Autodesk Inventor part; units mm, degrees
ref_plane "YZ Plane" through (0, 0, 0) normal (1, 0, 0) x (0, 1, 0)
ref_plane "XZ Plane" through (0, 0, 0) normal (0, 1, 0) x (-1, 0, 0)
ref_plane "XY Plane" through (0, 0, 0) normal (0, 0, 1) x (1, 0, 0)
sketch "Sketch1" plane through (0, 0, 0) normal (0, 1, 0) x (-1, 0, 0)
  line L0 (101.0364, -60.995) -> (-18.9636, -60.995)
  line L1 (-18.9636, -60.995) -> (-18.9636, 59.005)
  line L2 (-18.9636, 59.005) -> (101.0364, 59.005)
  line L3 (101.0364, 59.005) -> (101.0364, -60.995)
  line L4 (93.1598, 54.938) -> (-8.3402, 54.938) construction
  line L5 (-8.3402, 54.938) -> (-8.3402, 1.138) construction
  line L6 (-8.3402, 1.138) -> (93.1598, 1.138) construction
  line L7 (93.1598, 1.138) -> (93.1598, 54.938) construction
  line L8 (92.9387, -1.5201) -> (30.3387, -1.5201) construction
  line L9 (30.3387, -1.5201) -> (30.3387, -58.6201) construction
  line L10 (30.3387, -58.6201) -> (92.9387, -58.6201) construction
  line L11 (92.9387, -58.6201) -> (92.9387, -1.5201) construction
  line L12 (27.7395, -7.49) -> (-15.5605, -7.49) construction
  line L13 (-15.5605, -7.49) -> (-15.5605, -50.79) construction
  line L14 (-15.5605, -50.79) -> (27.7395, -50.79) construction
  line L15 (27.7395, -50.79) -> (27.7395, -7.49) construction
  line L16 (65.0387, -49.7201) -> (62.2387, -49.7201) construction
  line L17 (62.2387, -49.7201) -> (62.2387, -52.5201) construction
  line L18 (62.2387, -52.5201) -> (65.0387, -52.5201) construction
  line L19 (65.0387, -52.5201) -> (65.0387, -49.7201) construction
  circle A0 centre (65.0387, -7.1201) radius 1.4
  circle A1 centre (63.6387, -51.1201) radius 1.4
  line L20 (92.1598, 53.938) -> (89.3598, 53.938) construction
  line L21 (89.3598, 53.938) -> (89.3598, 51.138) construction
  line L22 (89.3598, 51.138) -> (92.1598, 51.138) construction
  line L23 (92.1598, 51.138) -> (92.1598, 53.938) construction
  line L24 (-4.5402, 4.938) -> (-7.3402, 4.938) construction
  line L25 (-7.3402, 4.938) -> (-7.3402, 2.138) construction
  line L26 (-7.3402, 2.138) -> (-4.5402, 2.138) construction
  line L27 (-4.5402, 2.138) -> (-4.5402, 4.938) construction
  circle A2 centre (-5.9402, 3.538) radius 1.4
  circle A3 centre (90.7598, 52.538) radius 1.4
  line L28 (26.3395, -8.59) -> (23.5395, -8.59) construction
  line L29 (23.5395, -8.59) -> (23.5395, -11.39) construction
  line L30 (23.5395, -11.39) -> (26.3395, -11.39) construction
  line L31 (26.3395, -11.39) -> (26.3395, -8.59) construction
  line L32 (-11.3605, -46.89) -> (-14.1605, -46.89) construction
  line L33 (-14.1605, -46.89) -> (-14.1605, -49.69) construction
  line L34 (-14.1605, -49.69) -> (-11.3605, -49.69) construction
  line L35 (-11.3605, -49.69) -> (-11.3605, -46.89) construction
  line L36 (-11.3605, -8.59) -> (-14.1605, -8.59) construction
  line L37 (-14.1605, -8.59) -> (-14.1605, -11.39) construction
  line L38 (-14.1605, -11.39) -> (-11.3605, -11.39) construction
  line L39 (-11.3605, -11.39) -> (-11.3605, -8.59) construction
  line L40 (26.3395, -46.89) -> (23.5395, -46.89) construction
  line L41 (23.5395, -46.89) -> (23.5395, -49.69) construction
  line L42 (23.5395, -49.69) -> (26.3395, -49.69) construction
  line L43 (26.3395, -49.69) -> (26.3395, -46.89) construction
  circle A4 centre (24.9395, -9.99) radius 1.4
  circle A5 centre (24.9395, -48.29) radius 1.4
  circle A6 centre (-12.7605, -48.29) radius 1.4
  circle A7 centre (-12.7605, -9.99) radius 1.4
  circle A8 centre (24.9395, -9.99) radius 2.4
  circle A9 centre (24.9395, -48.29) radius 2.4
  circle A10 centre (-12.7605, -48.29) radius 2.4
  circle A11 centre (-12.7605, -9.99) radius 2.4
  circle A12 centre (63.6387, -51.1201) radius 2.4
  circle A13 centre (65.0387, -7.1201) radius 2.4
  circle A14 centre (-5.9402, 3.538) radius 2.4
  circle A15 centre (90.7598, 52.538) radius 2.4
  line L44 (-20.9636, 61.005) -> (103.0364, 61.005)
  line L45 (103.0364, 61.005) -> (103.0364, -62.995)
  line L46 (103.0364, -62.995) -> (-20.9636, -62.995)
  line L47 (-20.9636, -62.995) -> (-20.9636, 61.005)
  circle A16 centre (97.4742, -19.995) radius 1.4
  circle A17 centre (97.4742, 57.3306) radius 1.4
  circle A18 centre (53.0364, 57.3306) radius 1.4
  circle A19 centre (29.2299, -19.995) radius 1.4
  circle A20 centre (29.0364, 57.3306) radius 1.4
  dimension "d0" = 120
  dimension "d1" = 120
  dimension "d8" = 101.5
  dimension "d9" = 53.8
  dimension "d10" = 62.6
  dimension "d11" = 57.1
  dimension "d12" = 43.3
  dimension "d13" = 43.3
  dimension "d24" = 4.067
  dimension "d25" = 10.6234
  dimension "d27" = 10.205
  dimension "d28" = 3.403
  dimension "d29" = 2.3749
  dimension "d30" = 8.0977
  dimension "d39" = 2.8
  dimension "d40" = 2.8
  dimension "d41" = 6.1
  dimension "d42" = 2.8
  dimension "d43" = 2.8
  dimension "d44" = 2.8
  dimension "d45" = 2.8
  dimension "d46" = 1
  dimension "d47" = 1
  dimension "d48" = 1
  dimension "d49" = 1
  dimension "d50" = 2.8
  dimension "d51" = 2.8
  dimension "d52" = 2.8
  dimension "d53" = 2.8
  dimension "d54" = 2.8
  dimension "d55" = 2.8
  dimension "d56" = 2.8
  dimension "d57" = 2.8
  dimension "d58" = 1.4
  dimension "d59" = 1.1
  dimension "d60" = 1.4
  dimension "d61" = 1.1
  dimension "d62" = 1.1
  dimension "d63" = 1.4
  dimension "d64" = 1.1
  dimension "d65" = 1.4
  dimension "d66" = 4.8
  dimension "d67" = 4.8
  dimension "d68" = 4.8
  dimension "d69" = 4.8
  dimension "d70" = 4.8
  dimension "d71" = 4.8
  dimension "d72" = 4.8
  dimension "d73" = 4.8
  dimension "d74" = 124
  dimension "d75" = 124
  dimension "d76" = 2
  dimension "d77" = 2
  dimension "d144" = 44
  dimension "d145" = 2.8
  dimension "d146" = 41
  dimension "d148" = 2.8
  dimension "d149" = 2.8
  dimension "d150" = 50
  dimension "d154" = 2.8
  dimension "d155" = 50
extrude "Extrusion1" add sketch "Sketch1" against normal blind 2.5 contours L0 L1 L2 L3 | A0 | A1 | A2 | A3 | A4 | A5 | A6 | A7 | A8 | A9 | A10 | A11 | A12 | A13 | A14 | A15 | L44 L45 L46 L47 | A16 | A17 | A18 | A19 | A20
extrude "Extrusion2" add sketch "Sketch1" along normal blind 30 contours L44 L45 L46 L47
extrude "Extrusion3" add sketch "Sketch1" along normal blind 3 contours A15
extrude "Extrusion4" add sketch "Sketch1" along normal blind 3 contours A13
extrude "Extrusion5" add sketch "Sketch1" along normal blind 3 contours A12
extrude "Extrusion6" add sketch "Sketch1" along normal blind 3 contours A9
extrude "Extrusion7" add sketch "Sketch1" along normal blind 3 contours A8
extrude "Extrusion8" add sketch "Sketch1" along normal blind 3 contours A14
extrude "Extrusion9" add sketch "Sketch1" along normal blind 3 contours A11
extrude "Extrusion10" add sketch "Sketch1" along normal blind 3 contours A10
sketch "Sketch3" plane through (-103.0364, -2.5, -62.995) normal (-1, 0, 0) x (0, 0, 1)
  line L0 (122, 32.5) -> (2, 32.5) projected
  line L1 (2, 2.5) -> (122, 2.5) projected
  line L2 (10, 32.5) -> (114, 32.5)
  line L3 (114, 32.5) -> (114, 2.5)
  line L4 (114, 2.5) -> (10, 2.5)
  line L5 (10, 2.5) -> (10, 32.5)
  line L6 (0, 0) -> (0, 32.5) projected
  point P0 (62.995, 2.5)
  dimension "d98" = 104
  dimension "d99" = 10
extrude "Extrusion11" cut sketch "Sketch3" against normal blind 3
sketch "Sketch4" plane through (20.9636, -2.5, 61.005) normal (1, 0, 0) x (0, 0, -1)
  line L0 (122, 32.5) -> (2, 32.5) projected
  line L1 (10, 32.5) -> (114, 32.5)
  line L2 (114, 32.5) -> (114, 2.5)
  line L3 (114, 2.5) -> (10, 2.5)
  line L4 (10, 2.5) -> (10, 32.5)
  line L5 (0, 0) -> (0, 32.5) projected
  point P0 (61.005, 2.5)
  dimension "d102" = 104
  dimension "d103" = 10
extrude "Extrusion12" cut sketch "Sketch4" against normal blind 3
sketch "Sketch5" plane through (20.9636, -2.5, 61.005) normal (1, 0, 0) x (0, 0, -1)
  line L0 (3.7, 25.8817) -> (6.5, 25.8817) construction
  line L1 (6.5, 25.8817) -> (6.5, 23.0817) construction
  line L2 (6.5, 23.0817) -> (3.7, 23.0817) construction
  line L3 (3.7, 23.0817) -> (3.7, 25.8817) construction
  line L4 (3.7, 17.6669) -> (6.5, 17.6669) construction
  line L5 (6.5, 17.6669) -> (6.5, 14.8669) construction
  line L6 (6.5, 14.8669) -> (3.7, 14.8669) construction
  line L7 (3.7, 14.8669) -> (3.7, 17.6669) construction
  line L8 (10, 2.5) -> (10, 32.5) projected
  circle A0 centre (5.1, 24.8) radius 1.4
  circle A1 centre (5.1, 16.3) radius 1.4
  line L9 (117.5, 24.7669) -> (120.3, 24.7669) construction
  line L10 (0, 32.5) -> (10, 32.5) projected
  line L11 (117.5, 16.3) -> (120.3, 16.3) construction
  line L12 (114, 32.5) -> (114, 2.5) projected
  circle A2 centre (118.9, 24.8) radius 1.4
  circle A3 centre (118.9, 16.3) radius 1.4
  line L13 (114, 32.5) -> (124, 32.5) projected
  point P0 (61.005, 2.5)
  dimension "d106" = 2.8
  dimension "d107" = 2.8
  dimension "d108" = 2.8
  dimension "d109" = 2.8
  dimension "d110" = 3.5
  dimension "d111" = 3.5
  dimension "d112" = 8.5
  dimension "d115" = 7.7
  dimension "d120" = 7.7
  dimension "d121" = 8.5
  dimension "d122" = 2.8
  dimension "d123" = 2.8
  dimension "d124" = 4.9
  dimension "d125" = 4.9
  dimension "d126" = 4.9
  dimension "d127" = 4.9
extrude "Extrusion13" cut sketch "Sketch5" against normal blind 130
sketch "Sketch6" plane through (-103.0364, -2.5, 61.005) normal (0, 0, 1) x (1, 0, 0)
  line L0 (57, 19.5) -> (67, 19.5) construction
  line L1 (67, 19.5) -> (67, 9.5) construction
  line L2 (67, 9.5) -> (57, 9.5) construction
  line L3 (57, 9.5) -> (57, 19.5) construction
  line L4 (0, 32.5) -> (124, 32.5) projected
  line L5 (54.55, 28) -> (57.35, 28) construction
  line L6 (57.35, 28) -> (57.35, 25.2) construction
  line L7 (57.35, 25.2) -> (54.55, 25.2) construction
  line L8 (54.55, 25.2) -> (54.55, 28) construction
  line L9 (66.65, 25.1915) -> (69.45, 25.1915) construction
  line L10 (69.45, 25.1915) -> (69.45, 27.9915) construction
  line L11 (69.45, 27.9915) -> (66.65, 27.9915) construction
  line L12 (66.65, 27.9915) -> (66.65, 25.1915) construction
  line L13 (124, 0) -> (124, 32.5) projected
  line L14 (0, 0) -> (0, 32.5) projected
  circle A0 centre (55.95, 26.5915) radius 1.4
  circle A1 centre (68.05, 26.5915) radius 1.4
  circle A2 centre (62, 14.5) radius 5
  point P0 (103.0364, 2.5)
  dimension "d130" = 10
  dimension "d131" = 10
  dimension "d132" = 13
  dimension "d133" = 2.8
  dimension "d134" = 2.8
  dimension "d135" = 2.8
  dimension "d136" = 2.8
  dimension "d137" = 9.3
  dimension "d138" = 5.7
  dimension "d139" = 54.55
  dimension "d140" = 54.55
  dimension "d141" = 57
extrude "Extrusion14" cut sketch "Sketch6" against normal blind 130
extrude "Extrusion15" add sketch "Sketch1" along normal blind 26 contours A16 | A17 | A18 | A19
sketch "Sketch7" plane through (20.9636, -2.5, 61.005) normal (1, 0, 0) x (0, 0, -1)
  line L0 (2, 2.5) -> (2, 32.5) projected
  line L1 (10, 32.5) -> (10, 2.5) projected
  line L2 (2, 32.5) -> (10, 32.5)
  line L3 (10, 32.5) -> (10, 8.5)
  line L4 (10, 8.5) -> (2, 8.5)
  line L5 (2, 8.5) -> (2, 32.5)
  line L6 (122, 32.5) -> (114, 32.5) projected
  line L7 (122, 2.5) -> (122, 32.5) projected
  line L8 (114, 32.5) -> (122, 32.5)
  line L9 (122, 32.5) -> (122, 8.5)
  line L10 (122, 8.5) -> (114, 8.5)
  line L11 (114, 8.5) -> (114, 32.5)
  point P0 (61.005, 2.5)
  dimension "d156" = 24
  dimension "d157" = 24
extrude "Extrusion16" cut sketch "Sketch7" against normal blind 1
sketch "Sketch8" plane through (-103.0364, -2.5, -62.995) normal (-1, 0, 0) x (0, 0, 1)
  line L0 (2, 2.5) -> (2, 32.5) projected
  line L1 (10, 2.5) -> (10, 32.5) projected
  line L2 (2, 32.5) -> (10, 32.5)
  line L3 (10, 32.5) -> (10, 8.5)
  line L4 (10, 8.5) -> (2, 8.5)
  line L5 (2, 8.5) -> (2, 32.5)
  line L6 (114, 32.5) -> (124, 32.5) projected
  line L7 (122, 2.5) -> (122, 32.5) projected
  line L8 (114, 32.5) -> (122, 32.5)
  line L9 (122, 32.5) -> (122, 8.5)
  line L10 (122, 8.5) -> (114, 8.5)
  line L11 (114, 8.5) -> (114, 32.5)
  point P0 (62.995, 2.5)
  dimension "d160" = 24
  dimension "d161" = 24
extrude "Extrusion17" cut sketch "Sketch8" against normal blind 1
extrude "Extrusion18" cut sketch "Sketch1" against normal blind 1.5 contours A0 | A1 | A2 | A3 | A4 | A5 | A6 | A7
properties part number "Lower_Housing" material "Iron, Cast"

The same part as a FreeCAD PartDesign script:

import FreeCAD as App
import Part
import Sketcher
from FreeCAD import Vector
Q = App.Units.Quantity


def add_polygon(sketch, points):
    """Adds a closed chain of lines whose ends are joined by coincident constraints."""
    first, n = sketch.GeometryCount, len(points)
    for a, b in zip(points, points[1:] + points[:1]):
        sketch.addGeometry(Part.LineSegment(App.Vector(*a, 0), App.Vector(*b, 0)), False)
    for i in range(n):
        sketch.addConstraint(Sketcher.Constraint("Coincident", first + i, 2, first + (i + 1) % n, 1))

doc = App.newDocument("Part")
params = doc.addObject("Spreadsheet::Sheet", "Params")
for row, (alias, value) in enumerate([
    ("sketch1_width", "124 mm"),
    ("pad1_length", "2.5 mm"),
    ("sketch2_width", "124 mm"),
    ("sketch2_width2", "120 mm"),
    ("pad2_length", "30 mm"),
    ("sketch3_diameter", "4.8 mm"),
    ("sketch3_diameter2", "2.8 mm"),
    ("pad3_length", "3 mm"),
    ("sketch4_diameter", "4.8 mm"),
    ("sketch4_diameter2", "2.8 mm"),
    ("pad4_length", "3 mm"),
    ("sketch5_diameter", "4.8 mm"),
    ("sketch5_diameter2", "2.8 mm"),
    ("pad5_length", "3 mm"),
    ("sketch6_diameter", "4.8 mm"),
    ("sketch6_diameter2", "2.8 mm"),
    ("pad6_length", "3 mm"),
    ("sketch7_diameter", "4.8 mm"),
    ("sketch7_diameter2", "2.8 mm"),
    ("pad7_length", "3 mm"),
    ("sketch8_diameter", "4.8 mm"),
    ("sketch8_diameter2", "2.8 mm"),
    ("pad8_length", "3 mm"),
    ("sketch9_diameter", "4.8 mm"),
    ("sketch9_diameter2", "2.8 mm"),
    ("pad9_length", "3 mm"),
    ("sketch10_diameter", "4.8 mm"),
    ("sketch10_diameter2", "2.8 mm"),
    ("pad10_length", "3 mm"),
    ("sketch11_height", "104 mm"),
    ("sketch11_width", "30 mm"),
    ("pocket1_length", "3 mm"),
    ("sketch12_height", "104 mm"),
    ("sketch12_width", "30 mm"),
    ("pocket2_length", "3 mm"),
    ("sketch13_diameter", "2.8 mm"),
    ("pocket3_length", "130 mm"),
    ("sketch14_diameter", "10 mm"),
    ("sketch14_diameter2", "2.8 mm"),
    ("pocket4_length", "130 mm"),
    ("sketch15_diameter", "2.8 mm"),
    ("pad11_length", "26 mm"),
    ("sketch16_width", "24 mm"),
    ("sketch16_height", "8 mm"),
    ("pocket5_length", "1 mm"),
    ("sketch17_width", "24 mm"),
    ("sketch17_height", "8 mm"),
    ("pocket6_length", "1 mm"),
    ("sketch18_diameter", "2.8 mm"),
    ("pocket7_length", "1.5 mm"),
], start=1):
    params.set(f"A{row}", alias)
    params.set(f"B{row}", "=" + value)
    params.setAlias(f"B{row}", alias)

body = doc.addObject("PartDesign::Body", "Body")

# Sketch on XZ plane
sketch1 = doc.addObject("Sketcher::SketchObject", "Sketch")
body.addObject(sketch1)
sketch1.AttachmentSupport = (doc.XZ_Plane, [""])
sketch1.MapMode = "FlatFace"
add_polygon(sketch1, [(-103, 61), (21, 61), (21, -63), (-103, -63)])  # lines 0-3
sketch1.addConstraint(Sketcher.Constraint("Horizontal", 0))
sketch1.addConstraint(Sketcher.Constraint("Vertical", 1))
sketch1.addConstraint(Sketcher.Constraint("Horizontal", 2))
sketch1.addConstraint(Sketcher.Constraint("Vertical", 3))
sketch1.addConstraint(Sketcher.Constraint("Equal", 2, 1))
sketch1.addConstraint(Sketcher.Constraint("DistanceX", 0, 1, 0, 2, Q("124 mm")))
sketch1.addConstraint(Sketcher.Constraint("DistanceY", -1, 1, 0, 2, Q("61.005 mm")))
sketch1.addConstraint(Sketcher.Constraint("DistanceX", -1, 1, 0, 2, Q("20.9636 mm")))
sketch1.setExpression("Constraints[9]", "Params.sketch1_width")
pad1 = doc.addObject("PartDesign::Pad", "Pad")
body.addObject(pad1)
pad1.Profile = sketch1
pad1.setExpression("Length", "Params.pad1_length")

# Sketch on XZ plane
sketch2 = doc.addObject("Sketcher::SketchObject", "Sketch001")
body.addObject(sketch2)
sketch2.AttachmentSupport = (doc.XZ_Plane, [""])
sketch2.MapMode = "FlatFace"
add_polygon(sketch2, [(-103, 61), (21, 61), (21, -63), (-103, -63)])  # lines 0-3
add_polygon(sketch2, [(-101, 59), (-101, -61), (19, -61), (19, 59)])  # lines 4-7
sketch2.addConstraint(Sketcher.Constraint("Horizontal", 0))
sketch2.addConstraint(Sketcher.Constraint("Vertical", 1))
sketch2.addConstraint(Sketcher.Constraint("Horizontal", 2))
sketch2.addConstraint(Sketcher.Constraint("Vertical", 3))
sketch2.addConstraint(Sketcher.Constraint("Vertical", 4))
sketch2.addConstraint(Sketcher.Constraint("Horizontal", 5))
sketch2.addConstraint(Sketcher.Constraint("Vertical", 6))
sketch2.addConstraint(Sketcher.Constraint("Horizontal", 7))
sketch2.addConstraint(Sketcher.Constraint("Equal", 2, 1))
sketch2.addConstraint(Sketcher.Constraint("Equal", 7, 4))
sketch2.addConstraint(Sketcher.Constraint("DistanceX", 0, 1, 0, 2, Q("124 mm")))
sketch2.addConstraint(Sketcher.Constraint("DistanceX", 5, 1, 5, 2, Q("120 mm")))
sketch2.addConstraint(Sketcher.Constraint("DistanceX", 2, 2, 4, 2, Q("2 mm")))
sketch2.addConstraint(Sketcher.Constraint("DistanceY", 2, 2, 4, 2, Q("2 mm")))
sketch2.addConstraint(Sketcher.Constraint("DistanceY", -1, 1, 0, 2, Q("61.005 mm")))
sketch2.addConstraint(Sketcher.Constraint("DistanceX", -1, 1, 0, 2, Q("20.9636 mm")))
sketch2.setExpression("Constraints[18]", "Params.sketch2_width")
sketch2.setExpression("Constraints[19]", "Params.sketch2_width2")
pad2 = doc.addObject("PartDesign::Pad", "Pad001")
body.addObject(pad2)
pad2.Profile = sketch2
pad2.setExpression("Length", "Params.pad2_length")
pad2.Reversed = True

# Sketch on XZ plane
sketch3 = doc.addObject("Sketcher::SketchObject", "Sketch002")
body.addObject(sketch3)
sketch3.AttachmentSupport = (doc.XZ_Plane, [""])
sketch3.MapMode = "FlatFace"
sketch3.addGeometry(Part.Circle(Vector(-90.8, 52.5, 0), Vector(0, 0, 1), 2.4), False)
sketch3.addGeometry(Part.Circle(Vector(-90.8, 52.5, 0), Vector(0, 0, 1), 1.4), False)
sketch3.addConstraint(Sketcher.Constraint("Coincident", 1, 3, 0, 3))
sketch3.addConstraint(Sketcher.Constraint("Diameter", 0, Q("4.8 mm")))
sketch3.addConstraint(Sketcher.Constraint("Diameter", 1, Q("2.8 mm")))
sketch3.addConstraint(Sketcher.Constraint("DistanceY", -1, 1, 0, 3, Q("52.538 mm")))
sketch3.addConstraint(Sketcher.Constraint("DistanceX", 0, 3, -1, 1, Q("90.7598 mm")))
sketch3.setExpression("Constraints[1]", "Params.sketch3_diameter")
sketch3.setExpression("Constraints[2]", "Params.sketch3_diameter2")
pad3 = doc.addObject("PartDesign::Pad", "Pad002")
body.addObject(pad3)
pad3.Profile = sketch3
pad3.setExpression("Length", "Params.pad3_length")
pad3.Reversed = True

# Sketch on XZ plane
sketch4 = doc.addObject("Sketcher::SketchObject", "Sketch003")
body.addObject(sketch4)
sketch4.AttachmentSupport = (doc.XZ_Plane, [""])
sketch4.MapMode = "FlatFace"
sketch4.addGeometry(Part.Circle(Vector(-65, -7.1, 0), Vector(0, 0, 1), 2.4), False)
sketch4.addGeometry(Part.Circle(Vector(-65, -7.1, 0), Vector(0, 0, 1), 1.4), False)
sketch4.addConstraint(Sketcher.Constraint("Coincident", 1, 3, 0, 3))
sketch4.addConstraint(Sketcher.Constraint("Diameter", 0, Q("4.8 mm")))
sketch4.addConstraint(Sketcher.Constraint("Diameter", 1, Q("2.8 mm")))
sketch4.addConstraint(Sketcher.Constraint("DistanceY", 0, 3, -1, 1, Q("7.12 mm")))
sketch4.addConstraint(Sketcher.Constraint("DistanceX", 0, 3, -1, 1, Q("65.0387 mm")))
sketch4.setExpression("Constraints[1]", "Params.sketch4_diameter")
sketch4.setExpression("Constraints[2]", "Params.sketch4_diameter2")
pad4 = doc.addObject("PartDesign::Pad", "Pad003")
body.addObject(pad4)
pad4.Profile = sketch4
pad4.setExpression("Length", "Params.pad4_length")
pad4.Reversed = True

# Sketch on XZ plane
sketch5 = doc.addObject("Sketcher::SketchObject", "Sketch004")
body.addObject(sketch5)
sketch5.AttachmentSupport = (doc.XZ_Plane, [""])
sketch5.MapMode = "FlatFace"
sketch5.addGeometry(Part.Circle(Vector(-63.6, -51.1, 0), Vector(0, 0, 1), 2.4), False)
sketch5.addGeometry(Part.Circle(Vector(-63.6, -51.1, 0), Vector(0, 0, 1), 1.4), False)
sketch5.addConstraint(Sketcher.Constraint("Coincident", 1, 3, 0, 3))
sketch5.addConstraint(Sketcher.Constraint("Diameter", 0, Q("4.8 mm")))
sketch5.addConstraint(Sketcher.Constraint("Diameter", 1, Q("2.8 mm")))
sketch5.addConstraint(Sketcher.Constraint("DistanceY", 0, 3, -1, 1, Q("51.12 mm")))
sketch5.addConstraint(Sketcher.Constraint("DistanceX", 0, 3, -1, 1, Q("63.6387 mm")))
sketch5.setExpression("Constraints[1]", "Params.sketch5_diameter")
sketch5.setExpression("Constraints[2]", "Params.sketch5_diameter2")
pad5 = doc.addObject("PartDesign::Pad", "Pad004")
body.addObject(pad5)
pad5.Profile = sketch5
pad5.setExpression("Length", "Params.pad5_length")
pad5.Reversed = True

# Sketch on XZ plane
sketch6 = doc.addObject("Sketcher::SketchObject", "Sketch005")
body.addObject(sketch6)
sketch6.AttachmentSupport = (doc.XZ_Plane, [""])
sketch6.MapMode = "FlatFace"
sketch6.addGeometry(Part.Circle(Vector(-24.9, -48.3, 0), Vector(0, 0, 1), 2.4), False)
sketch6.addGeometry(Part.Circle(Vector(-24.9, -48.3, 0), Vector(0, 0, 1), 1.4), False)
sketch6.addConstraint(Sketcher.Constraint("Coincident", 1, 3, 0, 3))
sketch6.addConstraint(Sketcher.Constraint("Diameter", 0, Q("4.8 mm")))
sketch6.addConstraint(Sketcher.Constraint("Diameter", 1, Q("2.8 mm")))
sketch6.addConstraint(Sketcher.Constraint("DistanceY", 0, 3, -1, 1, Q("48.29 mm")))
sketch6.addConstraint(Sketcher.Constraint("DistanceX", 0, 3, -1, 1, Q("24.9395 mm")))
sketch6.setExpression("Constraints[1]", "Params.sketch6_diameter")
sketch6.setExpression("Constraints[2]", "Params.sketch6_diameter2")
pad6 = doc.addObject("PartDesign::Pad", "Pad005")
body.addObject(pad6)
pad6.Profile = sketch6
pad6.setExpression("Length", "Params.pad6_length")
pad6.Reversed = True

# Sketch on XZ plane
sketch7 = doc.addObject("Sketcher::SketchObject", "Sketch006")
body.addObject(sketch7)
sketch7.AttachmentSupport = (doc.XZ_Plane, [""])
sketch7.MapMode = "FlatFace"
sketch7.addGeometry(Part.Circle(Vector(-24.9, -10, 0), Vector(0, 0, 1), 2.4), False)
sketch7.addGeometry(Part.Circle(Vector(-24.9, -10, 0), Vector(0, 0, 1), 1.4), False)
sketch7.addConstraint(Sketcher.Constraint("Coincident", 1, 3, 0, 3))
sketch7.addConstraint(Sketcher.Constraint("Diameter", 0, Q("4.8 mm")))
sketch7.addConstraint(Sketcher.Constraint("Diameter", 1, Q("2.8 mm")))
sketch7.addConstraint(Sketcher.Constraint("DistanceY", 0, 3, -1, 1, Q("9.99 mm")))
sketch7.addConstraint(Sketcher.Constraint("DistanceX", 0, 3, -1, 1, Q("24.9395 mm")))
sketch7.setExpression("Constraints[1]", "Params.sketch7_diameter")
sketch7.setExpression("Constraints[2]", "Params.sketch7_diameter2")
pad7 = doc.addObject("PartDesign::Pad", "Pad006")
body.addObject(pad7)
pad7.Profile = sketch7
pad7.setExpression("Length", "Params.pad7_length")
pad7.Reversed = True

# Sketch on XZ plane
sketch8 = doc.addObject("Sketcher::SketchObject", "Sketch007")
body.addObject(sketch8)
sketch8.AttachmentSupport = (doc.XZ_Plane, [""])
sketch8.MapMode = "FlatFace"
sketch8.addGeometry(Part.Circle(Vector(5.9, 3.5, 0), Vector(0, 0, 1), 2.4), False)
sketch8.addGeometry(Part.Circle(Vector(5.9, 3.5, 0), Vector(0, 0, 1), 1.4), False)
sketch8.addConstraint(Sketcher.Constraint("Coincident", 1, 3, 0, 3))
sketch8.addConstraint(Sketcher.Constraint("Diameter", 0, Q("4.8 mm")))
sketch8.addConstraint(Sketcher.Constraint("Diameter", 1, Q("2.8 mm")))
sketch8.addConstraint(Sketcher.Constraint("DistanceY", -1, 1, 0, 3, Q("3.538 mm")))
sketch8.addConstraint(Sketcher.Constraint("DistanceX", -1, 1, 0, 3, Q("5.9402 mm")))
sketch8.setExpression("Constraints[1]", "Params.sketch8_diameter")
sketch8.setExpression("Constraints[2]", "Params.sketch8_diameter2")
pad8 = doc.addObject("PartDesign::Pad", "Pad007")
body.addObject(pad8)
pad8.Profile = sketch8
pad8.setExpression("Length", "Params.pad8_length")
pad8.Reversed = True

# Sketch on XZ plane
sketch9 = doc.addObject("Sketcher::SketchObject", "Sketch008")
body.addObject(sketch9)
sketch9.AttachmentSupport = (doc.XZ_Plane, [""])
sketch9.MapMode = "FlatFace"
sketch9.addGeometry(Part.Circle(Vector(12.8, -10, 0), Vector(0, 0, 1), 2.4), False)
sketch9.addGeometry(Part.Circle(Vector(12.8, -10, 0), Vector(0, 0, 1), 1.4), False)
sketch9.addConstraint(Sketcher.Constraint("Coincident", 1, 3, 0, 3))
sketch9.addConstraint(Sketcher.Constraint("Diameter", 0, Q("4.8 mm")))
sketch9.addConstraint(Sketcher.Constraint("Diameter", 1, Q("2.8 mm")))
sketch9.addConstraint(Sketcher.Constraint("DistanceY", 0, 3, -1, 1, Q("9.99 mm")))
sketch9.addConstraint(Sketcher.Constraint("DistanceX", -1, 1, 0, 3, Q("12.7605 mm")))
sketch9.setExpression("Constraints[1]", "Params.sketch9_diameter")
sketch9.setExpression("Constraints[2]", "Params.sketch9_diameter2")
pad9 = doc.addObject("PartDesign::Pad", "Pad008")
body.addObject(pad9)
pad9.Profile = sketch9
pad9.setExpression("Length", "Params.pad9_length")
pad9.Reversed = True

# Sketch on XZ plane
sketch10 = doc.addObject("Sketcher::SketchObject", "Sketch009")
body.addObject(sketch10)
sketch10.AttachmentSupport = (doc.XZ_Plane, [""])
sketch10.MapMode = "FlatFace"
sketch10.addGeometry(Part.Circle(Vector(12.8, -48.3, 0), Vector(0, 0, 1), 2.4), False)
sketch10.addGeometry(Part.Circle(Vector(12.8, -48.3, 0), Vector(0, 0, 1), 1.4), False)
sketch10.addConstraint(Sketcher.Constraint("Coincident", 1, 3, 0, 3))
sketch10.addConstraint(Sketcher.Constraint("Diameter", 0, Q("4.8 mm")))
sketch10.addConstraint(Sketcher.Constraint("Diameter", 1, Q("2.8 mm")))
sketch10.addConstraint(Sketcher.Constraint("DistanceY", 0, 3, -1, 1, Q("48.29 mm")))
sketch10.addConstraint(Sketcher.Constraint("DistanceX", -1, 1, 0, 3, Q("12.7605 mm")))
sketch10.setExpression("Constraints[1]", "Params.sketch10_diameter")
sketch10.setExpression("Constraints[2]", "Params.sketch10_diameter2")
pad10 = doc.addObject("PartDesign::Pad", "Pad009")
body.addObject(pad10)
pad10.Profile = sketch10
pad10.setExpression("Length", "Params.pad10_length")
pad10.Reversed = True

# Sketch on YZ plane
sketch11 = doc.addObject("Sketcher::SketchObject", "Sketch010")
body.addObject(sketch11)
sketch11.AttachmentSupport = (doc.YZ_Plane, [""])
sketch11.MapMode = "FlatFace"
sketch11.AttachmentOffset = App.Placement(Vector(0, 0, -103.0364), App.Rotation())
add_polygon(sketch11, [(0, 51), (30, 51), (30, -53), (0, -53)])  # lines 0-3
sketch11.addConstraint(Sketcher.Constraint("Horizontal", 0))
sketch11.addConstraint(Sketcher.Constraint("Vertical", 1))
sketch11.addConstraint(Sketcher.Constraint("Horizontal", 2))
sketch11.addConstraint(Sketcher.Constraint("Vertical", 3))
sketch11.addConstraint(Sketcher.Constraint("PointOnObject", 2, 2, -2))
sketch11.addConstraint(Sketcher.Constraint("DistanceY", 1, 2, 1, 1, Q("104 mm")))
sketch11.addConstraint(Sketcher.Constraint("DistanceX", 0, 1, 0, 2, Q("30 mm")))
sketch11.addConstraint(Sketcher.Constraint("DistanceY", -1, 1, 0, 2, Q("51.005 mm")))
sketch11.setExpression("Constraints[9]", "Params.sketch11_height")
sketch11.setExpression("Constraints[10]", "Params.sketch11_width")
pocket1 = doc.addObject("PartDesign::Pocket", "Pocket")
body.addObject(pocket1)
pocket1.Profile = sketch11
pocket1.setExpression("Length", "Params.pocket1_length")
pocket1.Reversed = True

# Sketch on YZ plane
sketch12 = doc.addObject("Sketcher::SketchObject", "Sketch011")
body.addObject(sketch12)
sketch12.AttachmentSupport = (doc.YZ_Plane, [""])
sketch12.MapMode = "FlatFace"
sketch12.AttachmentOffset = App.Placement(Vector(0, 0, 20.9636), App.Rotation())
add_polygon(sketch12, [(0, -53), (30, -53), (30, 51), (0, 51)])  # lines 0-3
sketch12.addConstraint(Sketcher.Constraint("Horizontal", 0))
sketch12.addConstraint(Sketcher.Constraint("Vertical", 1))
sketch12.addConstraint(Sketcher.Constraint("Horizontal", 2))
sketch12.addConstraint(Sketcher.Constraint("Vertical", 3))
sketch12.addConstraint(Sketcher.Constraint("PointOnObject", 2, 2, -2))
sketch12.addConstraint(Sketcher.Constraint("DistanceY", 1, 1, 1, 2, Q("104 mm")))
sketch12.addConstraint(Sketcher.Constraint("DistanceX", 0, 1, 0, 2, Q("30 mm")))
sketch12.addConstraint(Sketcher.Constraint("DistanceY", 0, 2, -1, 1, Q("52.995 mm")))
sketch12.setExpression("Constraints[9]", "Params.sketch12_height")
sketch12.setExpression("Constraints[10]", "Params.sketch12_width")
pocket2 = doc.addObject("PartDesign::Pocket", "Pocket001")
body.addObject(pocket2)
pocket2.Profile = sketch12
pocket2.setExpression("Length", "Params.pocket2_length")

# Sketch on YZ plane
sketch13 = doc.addObject("Sketcher::SketchObject", "Sketch012")
body.addObject(sketch13)
sketch13.AttachmentSupport = (doc.YZ_Plane, [""])
sketch13.MapMode = "FlatFace"
sketch13.AttachmentOffset = App.Placement(Vector(0, 0, 20.9636), App.Rotation())
sketch13.addGeometry(Part.Circle(Vector(22.3, 55.9, 0), Vector(0, 0, 1), 1.4), False)
sketch13.addGeometry(Part.Circle(Vector(13.8, 55.9, 0), Vector(0, 0, 1), 1.4), False)
sketch13.addGeometry(Part.Circle(Vector(22.3, -57.9, 0), Vector(0, 0, 1), 1.4), False)
sketch13.addGeometry(Part.Circle(Vector(13.8, -57.9, 0), Vector(0, 0, 1), 1.4), False)
sketch13.addConstraint(Sketcher.Constraint("Equal", 0, 1))
sketch13.addConstraint(Sketcher.Constraint("Equal", 1, 2))
sketch13.addConstraint(Sketcher.Constraint("Equal", 2, 3))
sketch13.addConstraint(Sketcher.Constraint("Horizontal", 0, 3, 1, 3))
sketch13.addConstraint(Sketcher.Constraint("Horizontal", 2, 3, 3, 3))
sketch13.addConstraint(Sketcher.Constraint("Vertical", 0, 3, 2, 3))
sketch13.addConstraint(Sketcher.Constraint("Vertical", 1, 3, 3, 3))
sketch13.addConstraint(Sketcher.Constraint("Diameter", 0, Q("2.8 mm")))
sketch13.addConstraint(Sketcher.Constraint("DistanceX", 1, 3, 0, 3, Q("8.5 mm")))
sketch13.addConstraint(Sketcher.Constraint("DistanceX", -1, 1, 0, 3, Q("22.3 mm")))
sketch13.addConstraint(Sketcher.Constraint("DistanceY", 2, 3, 0, 3, Q("113.8 mm")))
sketch13.addConstraint(Sketcher.Constraint("DistanceY", -1, 1, 0, 3, Q("55.905 mm")))
sketch13.setExpression("Constraints[7]", "Params.sketch13_diameter")
pocket3 = doc.addObject("PartDesign::Pocket", "Pocket002")
body.addObject(pocket3)
pocket3.Profile = sketch13
pocket3.setExpression("Length", "Params.pocket3_length")

# Sketch on XY plane
sketch14 = doc.addObject("Sketcher::SketchObject", "Sketch013")
body.addObject(sketch14)
sketch14.AttachmentSupport = (doc.XY_Plane, [""])
sketch14.MapMode = "FlatFace"
sketch14.AttachmentOffset = App.Placement(Vector(0, 0, 61.005), App.Rotation())
sketch14.addGeometry(Part.Circle(Vector(-47.1, 24.1, 0), Vector(0, 0, 1), 1.4), False)
sketch14.addGeometry(Part.Circle(Vector(-35, 24.1, 0), Vector(0, 0, 1), 1.4), False)
sketch14.addGeometry(Part.Circle(Vector(-41, 12, 0), Vector(0, 0, 1), 5), False)
sketch14.addConstraint(Sketcher.Constraint("Equal", 0, 1))
sketch14.addConstraint(Sketcher.Constraint("Horizontal", 0, 3, 1, 3))
sketch14.addConstraint(Sketcher.Constraint("Diameter", 2, Q("10 mm")))
sketch14.addConstraint(Sketcher.Constraint("Diameter", 0, Q("2.8 mm")))
sketch14.addConstraint(Sketcher.Constraint("DistanceY", -1, 1, 2, 3, Q("12 mm")))
sketch14.addConstraint(Sketcher.Constraint("DistanceX", 0, 3, 1, 3, Q("12.1 mm")))
sketch14.addConstraint(Sketcher.Constraint("DistanceX", 0, 3, 2, 3, Q("6.05 mm")))
sketch14.addConstraint(Sketcher.Constraint("DistanceX", 0, 3, -1, 1, Q("47.0864 mm")))
sketch14.addConstraint(Sketcher.Constraint("DistanceY", -1, 1, 0, 3, Q("24.0915 mm")))
sketch14.setExpression("Constraints[2]", "Params.sketch14_diameter")
sketch14.setExpression("Constraints[3]", "Params.sketch14_diameter2")
pocket4 = doc.addObject("PartDesign::Pocket", "Pocket003")
body.addObject(pocket4)
pocket4.Profile = sketch14
pocket4.setExpression("Length", "Params.pocket4_length")

# Sketch on XZ plane
sketch15 = doc.addObject("Sketcher::SketchObject", "Sketch014")
body.addObject(sketch15)
sketch15.AttachmentSupport = (doc.XZ_Plane, [""])
sketch15.MapMode = "FlatFace"
sketch15.addGeometry(Part.Circle(Vector(-97.5, -20, 0), Vector(0, 0, 1), 1.4), False)
sketch15.addGeometry(Part.Circle(Vector(-97.5, 57.3, 0), Vector(0, 0, 1), 1.4), False)
sketch15.addGeometry(Part.Circle(Vector(-53, 57.3, 0), Vector(0, 0, 1), 1.4), False)
sketch15.addGeometry(Part.Circle(Vector(-29.2, -20, 0), Vector(0, 0, 1), 1.4), False)
sketch15.addConstraint(Sketcher.Constraint("Equal", 0, 1))
sketch15.addConstraint(Sketcher.Constraint("Equal", 1, 2))
sketch15.addConstraint(Sketcher.Constraint("Equal", 2, 3))
sketch15.addConstraint(Sketcher.Constraint("Horizontal", 1, 3, 2, 3))
sketch15.addConstraint(Sketcher.Constraint("Horizontal", 0, 3, 3, 3))
sketch15.addConstraint(Sketcher.Constraint("Vertical", 0, 3, 1, 3))
sketch15.addConstraint(Sketcher.Constraint("Diameter", 0, Q("2.8 mm")))
sketch15.addConstraint(Sketcher.Constraint("DistanceX", 3, 3, -1, 1, Q("29.23 mm")))
sketch15.addConstraint(Sketcher.Constraint("DistanceY", 0, 3, -1, 1, Q("19.995 mm")))
sketch15.addConstraint(Sketcher.Constraint("DistanceX", 0, 3, -1, 1, Q("97.4742 mm")))
sketch15.addConstraint(Sketcher.Constraint("DistanceY", -1, 1, 1, 3, Q("57.3306 mm")))
sketch15.addConstraint(Sketcher.Constraint("DistanceX", 2, 3, -1, 1, Q("53.0364 mm")))
sketch15.setExpression("Constraints[6]", "Params.sketch15_diameter")
pad11 = doc.addObject("PartDesign::Pad", "Pad010")
body.addObject(pad11)
pad11.Profile = sketch15
pad11.setExpression("Length", "Params.pad11_length")
pad11.Reversed = True

# Sketch on YZ plane
sketch16 = doc.addObject("Sketcher::SketchObject", "Sketch015")
body.addObject(sketch16)
sketch16.AttachmentSupport = (doc.YZ_Plane, [""])
sketch16.MapMode = "FlatFace"
sketch16.AttachmentOffset = App.Placement(Vector(0, 0, 20.9636), App.Rotation())
add_polygon(sketch16, [(30, 59), (6, 59), (6, 51), (30, 51)])  # lines 0-3
add_polygon(sketch16, [(6, -61), (30, -61), (30, -53), (6, -53)])  # lines 4-7
sketch16.addConstraint(Sketcher.Constraint("Horizontal", 0))
sketch16.addConstraint(Sketcher.Constraint("Vertical", 1))
sketch16.addConstraint(Sketcher.Constraint("Horizontal", 2))
sketch16.addConstraint(Sketcher.Constraint("Vertical", 3))
sketch16.addConstraint(Sketcher.Constraint("Horizontal", 4))
sketch16.addConstraint(Sketcher.Constraint("Vertical", 5))
sketch16.addConstraint(Sketcher.Constraint("Horizontal", 6))
sketch16.addConstraint(Sketcher.Constraint("Vertical", 7))
sketch16.addConstraint(Sketcher.Constraint("Vertical", 3, 2, 4, 2))
sketch16.addConstraint(Sketcher.Constraint("Vertical", 1, 2, 6, 2))
sketch16.addConstraint(Sketcher.Constraint("Equal", 3, 5))
sketch16.addConstraint(Sketcher.Constraint("DistanceX", 0, 2, 0, 1, Q("24 mm")))
sketch16.addConstraint(Sketcher.Constraint("DistanceY", 1, 2, 1, 1, Q("8 mm")))
sketch16.addConstraint(Sketcher.Constraint("DistanceX", -1, 1, 0, 2, Q("6 mm")))
sketch16.addConstraint(Sketcher.Constraint("DistanceY", 4, 2, 2, 2, Q("112 mm")))
sketch16.addConstraint(Sketcher.Constraint("DistanceY", -1, 1, 0, 2, Q("59.005 mm")))
sketch16.setExpression("Constraints[19]", "Params.sketch16_width")
sketch16.setExpression("Constraints[20]", "Params.sketch16_height")
pocket5 = doc.addObject("PartDesign::Pocket", "Pocket004")
body.addObject(pocket5)
pocket5.Profile = sketch16
pocket5.setExpression("Length", "Params.pocket5_length")

# Sketch on YZ plane
sketch17 = doc.addObject("Sketcher::SketchObject", "Sketch016")
body.addObject(sketch17)
sketch17.AttachmentSupport = (doc.YZ_Plane, [""])
sketch17.MapMode = "FlatFace"
sketch17.AttachmentOffset = App.Placement(Vector(0, 0, -103.0364), App.Rotation())
add_polygon(sketch17, [(30, -61), (6, -61), (6, -53), (30, -53)])  # lines 0-3
add_polygon(sketch17, [(30, 59), (30, 51), (6, 51), (6, 59)])  # lines 4-7
sketch17.addConstraint(Sketcher.Constraint("Horizontal", 0))
sketch17.addConstraint(Sketcher.Constraint("Vertical", 1))
sketch17.addConstraint(Sketcher.Constraint("Horizontal", 2))
sketch17.addConstraint(Sketcher.Constraint("Vertical", 3))
sketch17.addConstraint(Sketcher.Constraint("Vertical", 4))
sketch17.addConstraint(Sketcher.Constraint("Horizontal", 5))
sketch17.addConstraint(Sketcher.Constraint("Vertical", 6))
sketch17.addConstraint(Sketcher.Constraint("Horizontal", 7))
sketch17.addConstraint(Sketcher.Constraint("Vertical", 3, 2, 4, 2))
sketch17.addConstraint(Sketcher.Constraint("Vertical", 1, 2, 5, 2))
sketch17.addConstraint(Sketcher.Constraint("Equal", 3, 4))
sketch17.addConstraint(Sketcher.Constraint("DistanceX", 0, 2, 0, 1, Q("24 mm")))
sketch17.addConstraint(Sketcher.Constraint("DistanceY", 1, 1, 1, 2, Q("8 mm")))
sketch17.addConstraint(Sketcher.Constraint("DistanceX", -1, 1, 0, 2, Q("6 mm")))
sketch17.addConstraint(Sketcher.Constraint("DistanceY", 2, 2, 4, 2, Q("104 mm")))
sketch17.addConstraint(Sketcher.Constraint("DistanceY", 0, 2, -1, 1, Q("60.995 mm")))
sketch17.setExpression("Constraints[19]", "Params.sketch17_width")
sketch17.setExpression("Constraints[20]", "Params.sketch17_height")
pocket6 = doc.addObject("PartDesign::Pocket", "Pocket005")
body.addObject(pocket6)
pocket6.Profile = sketch17
pocket6.setExpression("Length", "Params.pocket6_length")
pocket6.Reversed = True

# Sketch on XZ plane
sketch18 = doc.addObject("Sketcher::SketchObject", "Sketch017")
body.addObject(sketch18)
sketch18.AttachmentSupport = (doc.XZ_Plane, [""])
sketch18.MapMode = "FlatFace"
sketch18.addGeometry(Part.Circle(Vector(-65, -7.1, 0), Vector(0, 0, 1), 1.4), False)
sketch18.addGeometry(Part.Circle(Vector(-63.6, -51.1, 0), Vector(0, 0, 1), 1.4), False)
sketch18.addGeometry(Part.Circle(Vector(5.9, 3.5, 0), Vector(0, 0, 1), 1.4), False)
sketch18.addGeometry(Part.Circle(Vector(-90.8, 52.5, 0), Vector(0, 0, 1), 1.4), False)
sketch18.addGeometry(Part.Circle(Vector(-24.9, -10, 0), Vector(0, 0, 1), 1.4), False)
sketch18.addGeometry(Part.Circle(Vector(-24.9, -48.3, 0), Vector(0, 0, 1), 1.4), False)
sketch18.addGeometry(Part.Circle(Vector(12.8, -48.3, 0), Vector(0, 0, 1), 1.4), False)
sketch18.addGeometry(Part.Circle(Vector(12.8, -10, 0), Vector(0, 0, 1), 1.4), False)
sketch18.addConstraint(Sketcher.Constraint("Equal", 0, 1))
sketch18.addConstraint(Sketcher.Constraint("Equal", 1, 2))
sketch18.addConstraint(Sketcher.Constraint("Equal", 2, 3))
sketch18.addConstraint(Sketcher.Constraint("Equal", 3, 4))
sketch18.addConstraint(Sketcher.Constraint("Equal", 4, 5))
sketch18.addConstraint(Sketcher.Constraint("Equal", 5, 6))
sketch18.addConstraint(Sketcher.Constraint("Equal", 6, 7))
sketch18.addConstraint(Sketcher.Constraint("Horizontal", 5, 3, 6, 3))
sketch18.addConstraint(Sketcher.Constraint("Horizontal", 4, 3, 7, 3))
sketch18.addConstraint(Sketcher.Constraint("Vertical", 4, 3, 5, 3))
sketch18.addConstraint(Sketcher.Constraint("Vertical", 6, 3, 7, 3))
sketch18.addConstraint(Sketcher.Constraint("Diameter", 0, Q("2.8 mm")))
sketch18.addConstraint(Sketcher.Constraint("DistanceY", 1, 3, 0, 3, Q("44 mm")))
sketch18.addConstraint(Sketcher.Constraint("DistanceX", 0, 3, 1, 3, Q("1.4 mm")))
sketch18.addConstraint(Sketcher.Constraint("DistanceY", 2, 3, 3, 3, Q("49 mm")))
sketch18.addConstraint(Sketcher.Constraint("DistanceX", 3, 3, 2, 3, Q("96.7 mm")))
sketch18.addConstraint(Sketcher.Constraint("DistanceY", 5, 3, 4, 3, Q("38.3 mm")))
sketch18.addConstraint(Sketcher.Constraint("DistanceX", 5, 3, 6, 3, Q("37.7 mm")))
sketch18.addConstraint(Sketcher.Constraint("DistanceY", 0, 3, -1, 1, Q("7.12 mm")))
sketch18.addConstraint(Sketcher.Constraint("DistanceY", 4, 3, -1, 1, Q("9.99 mm")))
sketch18.addConstraint(Sketcher.Constraint("DistanceY", -1, 1, 2, 3, Q("3.538 mm")))
sketch18.addConstraint(Sketcher.Constraint("DistanceX", 0, 3, 2, 3, Q("70.979 mm")))
sketch18.addConstraint(Sketcher.Constraint("DistanceX", 0, 3, -1, 1, Q("65.0387 mm")))
sketch18.addConstraint(Sketcher.Constraint("DistanceX", 4, 3, -1, 1, Q("24.9395 mm")))
sketch18.setExpression("Constraints[11]", "Params.sketch18_diameter")
pocket7 = doc.addObject("PartDesign::Pocket", "Pocket006")
body.addObject(pocket7)
pocket7.Profile = sketch18
pocket7.setExpression("Length", "Params.pocket7_length")
pocket7.Reversed = True

doc.recompute()
